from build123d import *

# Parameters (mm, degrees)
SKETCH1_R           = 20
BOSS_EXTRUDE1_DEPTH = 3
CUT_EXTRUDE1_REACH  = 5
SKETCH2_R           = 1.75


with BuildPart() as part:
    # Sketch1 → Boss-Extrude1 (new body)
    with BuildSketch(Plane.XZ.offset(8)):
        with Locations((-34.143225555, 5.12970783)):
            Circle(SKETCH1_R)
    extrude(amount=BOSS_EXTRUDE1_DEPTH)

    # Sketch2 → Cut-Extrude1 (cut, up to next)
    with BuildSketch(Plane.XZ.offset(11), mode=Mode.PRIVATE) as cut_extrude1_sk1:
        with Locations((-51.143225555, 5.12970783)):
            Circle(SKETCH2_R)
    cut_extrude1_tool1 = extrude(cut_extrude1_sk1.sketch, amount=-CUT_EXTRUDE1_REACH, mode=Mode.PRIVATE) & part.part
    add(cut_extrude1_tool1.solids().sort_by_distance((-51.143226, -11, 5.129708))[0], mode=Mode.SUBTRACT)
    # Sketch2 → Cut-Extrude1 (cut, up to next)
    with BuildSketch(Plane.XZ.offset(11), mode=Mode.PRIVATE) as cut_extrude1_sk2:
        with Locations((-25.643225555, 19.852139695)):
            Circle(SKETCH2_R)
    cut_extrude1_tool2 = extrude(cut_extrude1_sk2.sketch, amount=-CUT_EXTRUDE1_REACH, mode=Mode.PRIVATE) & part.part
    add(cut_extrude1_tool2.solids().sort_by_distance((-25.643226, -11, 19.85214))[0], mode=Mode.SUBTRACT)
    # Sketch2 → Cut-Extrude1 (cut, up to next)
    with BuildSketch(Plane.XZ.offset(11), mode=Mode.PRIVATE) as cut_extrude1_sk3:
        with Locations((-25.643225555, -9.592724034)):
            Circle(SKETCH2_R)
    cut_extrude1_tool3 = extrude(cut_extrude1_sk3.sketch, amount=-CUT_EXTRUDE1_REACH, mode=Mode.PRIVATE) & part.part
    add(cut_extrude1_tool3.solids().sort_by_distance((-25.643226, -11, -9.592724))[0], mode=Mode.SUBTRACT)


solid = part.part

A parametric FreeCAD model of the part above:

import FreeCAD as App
import Part
import Sketcher
from FreeCAD import Vector

doc = App.newDocument("Part")
params = doc.addObject("Spreadsheet::Sheet", "Params")
for row, (alias, value) in enumerate([
    ("sketch1_diameter", "40 mm"),
    ("pad1_length", "3 mm"),
    ("sketch2_diameter", "3.5 mm"),
    ("sketch3_diameter", "3.5 mm"),
    ("sketch4_diameter", "3.5 mm"),
], start=1):
    params.set(f"A{row}", alias)
    params.set(f"B{row}", "=" + value)
    params.setAlias(f"B{row}", alias)

body = doc.addObject("PartDesign::Body", "Body")

# Sketch on XZ plane
sketch1 = body.newObject("Sketcher::SketchObject", "Sketch")
sketch1.AttachmentSupport = (doc.getObject("XZ_Plane"), [""])
sketch1.MapMode = "FlatFace"
sketch1.AttachmentOffset = App.Placement(Vector(0, 0, 8), App.Rotation())
sketch1.addGeometry(Part.Circle(Vector(-34, 5, 0), Vector(0, 0, 1), 20), False)
sketch1.addConstraint([
    Sketcher.Constraint("Diameter", 0, 40.0),
    Sketcher.Constraint("DistanceX", 0, 3, -1, 1, 34.143226),
    Sketcher.Constraint("DistanceY", -1, 1, 0, 3, 5.129708),
])
sketch1.setExpression("Constraints[0]", "Params.sketch1_diameter")
pad1 = body.newObject("PartDesign::Pad", "Pad")
pad1.Profile = sketch1
pad1.setExpression("Length", "Params.pad1_length")

# Sketch on XZ plane
sketch2 = body.newObject("Sketcher::SketchObject", "Sketch001")
sketch2.AttachmentSupport = (doc.getObject("XZ_Plane"), [""])
sketch2.MapMode = "FlatFace"
sketch2.AttachmentOffset = App.Placement(Vector(0, 0, 11), App.Rotation())
sketch2.addGeometry(Part.Circle(Vector(-51.1, 5.1, 0), Vector(0, 0, 1), 1.8), False)
sketch2.addConstraint([
    Sketcher.Constraint("Diameter", 0, 3.5),
    Sketcher.Constraint("DistanceX", 0, 3, -1, 1, 51.143226),
    Sketcher.Constraint("DistanceY", -1, 1, 0, 3, 5.129708),
])
sketch2.setExpression("Constraints[0]", "Params.sketch2_diameter")
pocket1 = body.newObject("PartDesign::Pocket", "Pocket")
pocket1.Profile = sketch2
pocket1.Type = "UpToFirst"

# Sketch on XZ plane
sketch3 = body.newObject("Sketcher::SketchObject", "Sketch002")
sketch3.AttachmentSupport = (doc.getObject("XZ_Plane"), [""])
sketch3.MapMode = "FlatFace"
sketch3.AttachmentOffset = App.Placement(Vector(0, 0, 11), App.Rotation())
sketch3.addGeometry(Part.Circle(Vector(-25.6, 19.9, 0), Vector(0, 0, 1), 1.8), False)
sketch3.addConstraint([
    Sketcher.Constraint("Diameter", 0, 3.5),
    Sketcher.Constraint("DistanceY", -1, 1, 0, 3, 19.85214),
    Sketcher.Constraint("DistanceX", 0, 3, -1, 1, 25.643226),
])
sketch3.setExpression("Constraints[0]", "Params.sketch3_diameter")
pocket2 = body.newObject("PartDesign::Pocket", "Pocket001")
pocket2.Profile = sketch3
pocket2.Type = "UpToFirst"

# Sketch on XZ plane
sketch4 = body.newObject("Sketcher::SketchObject", "Sketch003")
sketch4.AttachmentSupport = (doc.getObject("XZ_Plane"), [""])
sketch4.MapMode = "FlatFace"
sketch4.AttachmentOffset = App.Placement(Vector(0, 0, 11), App.Rotation())
sketch4.addGeometry(Part.Circle(Vector(-25.6, -9.6, 0), Vector(0, 0, 1), 1.8), False)
sketch4.addConstraint([
    Sketcher.Constraint("Diameter", 0, 3.5),
    Sketcher.Constraint("DistanceX", 0, 3, -1, 1, 25.643226),
    Sketcher.Constraint("DistanceY", 0, 3, -1, 1, 9.592724),
])
sketch4.setExpression("Constraints[0]", "Params.sketch4_diameter")
pocket3 = body.newObject("PartDesign::Pocket", "Pocket002")
pocket3.Profile = sketch4
pocket3.Type = "UpToFirst"

doc.recompute()
